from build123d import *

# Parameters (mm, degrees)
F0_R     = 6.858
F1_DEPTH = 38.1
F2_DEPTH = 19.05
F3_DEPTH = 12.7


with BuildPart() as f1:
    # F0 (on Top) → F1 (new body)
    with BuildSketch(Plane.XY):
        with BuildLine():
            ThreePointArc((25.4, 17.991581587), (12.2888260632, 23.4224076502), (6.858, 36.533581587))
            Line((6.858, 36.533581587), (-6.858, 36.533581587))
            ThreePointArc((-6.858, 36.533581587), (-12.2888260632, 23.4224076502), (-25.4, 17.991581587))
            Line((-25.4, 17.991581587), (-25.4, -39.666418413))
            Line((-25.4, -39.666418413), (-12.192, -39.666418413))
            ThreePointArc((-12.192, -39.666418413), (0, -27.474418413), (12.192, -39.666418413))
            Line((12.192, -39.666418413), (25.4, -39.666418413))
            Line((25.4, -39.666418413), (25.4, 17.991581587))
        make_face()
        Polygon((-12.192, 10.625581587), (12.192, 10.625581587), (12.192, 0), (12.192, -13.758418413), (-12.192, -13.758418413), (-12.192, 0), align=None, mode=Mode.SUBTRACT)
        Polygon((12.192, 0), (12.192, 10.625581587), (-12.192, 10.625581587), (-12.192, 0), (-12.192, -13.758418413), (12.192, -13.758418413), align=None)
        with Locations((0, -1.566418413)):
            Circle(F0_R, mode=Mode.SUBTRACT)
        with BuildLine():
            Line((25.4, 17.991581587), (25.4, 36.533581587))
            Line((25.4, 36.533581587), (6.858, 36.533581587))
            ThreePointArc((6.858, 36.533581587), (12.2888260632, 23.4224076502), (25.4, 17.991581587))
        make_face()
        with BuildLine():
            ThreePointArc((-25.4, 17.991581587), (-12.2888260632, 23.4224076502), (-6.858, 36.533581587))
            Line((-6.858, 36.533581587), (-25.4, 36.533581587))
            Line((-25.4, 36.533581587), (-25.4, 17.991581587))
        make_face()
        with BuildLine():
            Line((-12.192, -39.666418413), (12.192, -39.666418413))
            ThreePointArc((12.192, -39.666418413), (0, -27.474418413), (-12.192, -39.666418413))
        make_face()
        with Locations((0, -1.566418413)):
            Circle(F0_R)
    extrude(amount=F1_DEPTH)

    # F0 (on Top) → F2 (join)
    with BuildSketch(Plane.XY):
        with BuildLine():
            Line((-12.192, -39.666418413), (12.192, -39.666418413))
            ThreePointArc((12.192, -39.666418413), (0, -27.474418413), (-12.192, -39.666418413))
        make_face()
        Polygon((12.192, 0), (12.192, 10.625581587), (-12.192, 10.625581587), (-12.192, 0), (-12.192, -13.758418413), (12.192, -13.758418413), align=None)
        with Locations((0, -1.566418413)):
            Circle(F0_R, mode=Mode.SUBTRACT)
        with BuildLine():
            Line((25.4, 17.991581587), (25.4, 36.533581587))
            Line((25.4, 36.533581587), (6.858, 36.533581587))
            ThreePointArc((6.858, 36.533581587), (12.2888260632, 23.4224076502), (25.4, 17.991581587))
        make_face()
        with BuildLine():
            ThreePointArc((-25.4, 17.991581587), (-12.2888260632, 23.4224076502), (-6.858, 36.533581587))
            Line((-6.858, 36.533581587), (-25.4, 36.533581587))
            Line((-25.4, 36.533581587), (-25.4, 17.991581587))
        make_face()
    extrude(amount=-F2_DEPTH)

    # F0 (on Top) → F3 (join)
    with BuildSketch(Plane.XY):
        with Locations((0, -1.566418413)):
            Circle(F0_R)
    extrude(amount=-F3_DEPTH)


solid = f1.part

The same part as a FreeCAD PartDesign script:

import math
import FreeCAD as App
import Part
import Sketcher
from FreeCAD import Vector
Q = App.Units.Quantity

doc = App.newDocument("Part")
body = doc.addObject("PartDesign::Body", "Body")

# Sketch on XY plane
sketch1 = body.newObject("Sketcher::SketchObject", "Sketch")
sketch1.AttachmentSupport = (doc.getObject("XY_Plane"), [""])
sketch1.MapMode = "FlatFace"
sketch1.addGeometry(Part.LineSegment(Vector(25, -40, 0), Vector(25, 37, 0)), False)
sketch1.addGeometry(Part.LineSegment(Vector(25, 37, 0), Vector(-25, 37, 0)), False)
sketch1.addGeometry(Part.LineSegment(Vector(-25, 37, 0), Vector(-25, -40, 0)), False)
sketch1.addGeometry(Part.LineSegment(Vector(-25, -40, 0), Vector(25, -40, 0)), False)
sketch1.addConstraint(Sketcher.Constraint("Coincident", 0, 2, 1, 1))
sketch1.addConstraint(Sketcher.Constraint("Coincident", 1, 2, 2, 1))
sketch1.addConstraint(Sketcher.Constraint("Coincident", 2, 2, 3, 1))
sketch1.addConstraint(Sketcher.Constraint("Coincident", 3, 2, 0, 1))
sketch1.addConstraint(Sketcher.Constraint("Vertical", 0))
sketch1.addConstraint(Sketcher.Constraint("Horizontal", 1))
sketch1.addConstraint(Sketcher.Constraint("Vertical", 2))
sketch1.addConstraint(Sketcher.Constraint("Horizontal", 3))
sketch1.addConstraint(Sketcher.Constraint("DistanceX", 1, 2, 1, 1, Q("2 in")))
sketch1.addConstraint(Sketcher.Constraint("DistanceY", 0, 1, 0, 2, Q("3 in")))
sketch1.addConstraint(Sketcher.Constraint("DistanceX", -1, 1, 0, 2, Q("1 in")))
sketch1.addConstraint(Sketcher.Constraint("DistanceY", -1, 1, 0, 2, 36.533582))
pad1 = body.newObject("PartDesign::Pad", "Pad")
pad1.Profile = sketch1
pad1.Length = Q("1.5 in")

# Sketch on XY plane
sketch2 = body.newObject("Sketcher::SketchObject", "Sketch001")
sketch2.AttachmentSupport = (doc.getObject("XY_Plane"), [""])
sketch2.MapMode = "FlatFace"
sketch2.addGeometry(Part.LineSegment(Vector(-12, -40, 0), Vector(12, -40, 0)), False)
sketch2.addGeometry(Part.ArcOfCircle(Part.Circle(Vector(0, -40, 0), Vector(0, 0, 1), 12), math.radians(0), math.radians(180)), False)
sketch2.addGeometry(Part.LineSegment(Vector(12, 11, 0), Vector(-12, 11, 0)), False)
sketch2.addGeometry(Part.LineSegment(Vector(-12, 11, 0), Vector(-12, -14, 0)), False)
sketch2.addGeometry(Part.LineSegment(Vector(-12, -14, 0), Vector(12, -14, 0)), False)
sketch2.addGeometry(Part.LineSegment(Vector(12, -14, 0), Vector(12, 11, 0)), False)
sketch2.addGeometry(Part.Circle(Vector(0, -2, 0), Vector(0, 0, 1), 7), False)
sketch2.addGeometry(Part.LineSegment(Vector(25, 18, 0), Vector(25, 37, 0)), False)
sketch2.addGeometry(Part.LineSegment(Vector(25, 37, 0), Vector(7, 37, 0)), False)
sketch2.addGeometry(Part.ArcOfCircle(Part.Circle(Vector(25, 37, 0), Vector(0, 0, 1), 19), math.radians(180), math.radians(270)), False)
sketch2.addGeometry(Part.ArcOfCircle(Part.Circle(Vector(-25, 37, 0), Vector(0, 0, 1), 19), math.radians(-90), math.radians(0)), False)
sketch2.addGeometry(Part.LineSegment(Vector(-7, 37, 0), Vector(-25, 37, 0)), False)
sketch2.addGeometry(Part.LineSegment(Vector(-25, 37, 0), Vector(-25, 18, 0)), False)
sketch2.addConstraint(Sketcher.Constraint("Coincident", 0, 1, 1, 2))
sketch2.addConstraint(Sketcher.Constraint("Coincident", 1, 1, 0, 2))
sketch2.addConstraint(Sketcher.Constraint("Coincident", 2, 2, 3, 1))
sketch2.addConstraint(Sketcher.Constraint("Coincident", 3, 2, 4, 1))
sketch2.addConstraint(Sketcher.Constraint("Coincident", 4, 2, 5, 1))
sketch2.addConstraint(Sketcher.Constraint("Coincident", 5, 2, 2, 1))
sketch2.addConstraint(Sketcher.Constraint("Coincident", 7, 2, 8, 1))
sketch2.addConstraint(Sketcher.Constraint("Coincident", 8, 2, 9, 1))
sketch2.addConstraint(Sketcher.Constraint("Coincident", 9, 2, 7, 1))
sketch2.addConstraint(Sketcher.Constraint("Coincident", 10, 2, 11, 1))
sketch2.addConstraint(Sketcher.Constraint("Coincident", 11, 2, 12, 1))
sketch2.addConstraint(Sketcher.Constraint("Coincident", 12, 2, 10, 1))
sketch2.addConstraint(Sketcher.Constraint("Horizontal", 0))
sketch2.addConstraint(Sketcher.Constraint("Horizontal", 2))
sketch2.addConstraint(Sketcher.Constraint("Vertical", 3))
sketch2.addConstraint(Sketcher.Constraint("Horizontal", 4))
sketch2.addConstraint(Sketcher.Constraint("Vertical", 5))
sketch2.addConstraint(Sketcher.Constraint("Vertical", 7))
sketch2.addConstraint(Sketcher.Constraint("Horizontal", 8))
sketch2.addConstraint(Sketcher.Constraint("Horizontal", 11))
sketch2.addConstraint(Sketcher.Constraint("Vertical", 12))
sketch2.addConstraint(Sketcher.Constraint("Coincident", 7, 2, 9, 3))
sketch2.addConstraint(Sketcher.Constraint("Coincident", 11, 2, 10, 3))
sketch2.addConstraint(Sketcher.Constraint("Equal", 9, 10))
sketch2.addConstraint(Sketcher.Constraint("Symmetric", 9, 3, 10, 3, -2))
sketch2.addConstraint(Sketcher.Constraint("PointOnObject", 1, 3, -2))
sketch2.addConstraint(Sketcher.Constraint("PointOnObject", 6, 3, -2))
sketch2.addConstraint(Sketcher.Constraint("Horizontal", 1, 3, 0, 1))
sketch2.addConstraint(Sketcher.Constraint("Vertical", 0, 1, 2, 2))
sketch2.addConstraint(Sketcher.Constraint("Vertical", 1, 1, 4, 2))
sketch2.addConstraint(Sketcher.Constraint("Equal", 4, 3))
sketch2.addConstraint(Sketcher.Constraint("Diameter", 6, Q("0.54 in")))
sketch2.addConstraint(Sketcher.Constraint("Radius", 1, Q("0.48 in")))
sketch2.addConstraint(Sketcher.Constraint("Radius", 9, Q("0.73 in")))
sketch2.addConstraint(Sketcher.Constraint("DistanceX", -1, 1, 9, 3, Q("1 in")))
sketch2.addConstraint(Sketcher.Constraint("DistanceY", 1, 3, 9, 3, Q("3 in")))
sketch2.addConstraint(Sketcher.Constraint("DistanceY", 1, 3, 6, 3, Q("1.5 in")))
sketch2.addConstraint(Sketcher.Constraint("DistanceY", 6, 3, 2, 2, Q("0.48 in")))
sketch2.addConstraint(Sketcher.Constraint("DistanceY", 1, 3, -1, 1, 39.666418))
pad2 = body.newObject("PartDesign::Pad", "Pad001")
pad2.Profile = sketch2
pad2.Length = Q("0.75 in")
pad2.Reversed = True

# Sketch on XY plane
sketch3 = body.newObject("Sketcher::SketchObject", "Sketch002")
sketch3.AttachmentSupport = (doc.getObject("XY_Plane"), [""])
sketch3.MapMode = "FlatFace"
sketch3.addGeometry(Part.Circle(Vector(0, -2, 0), Vector(0, 0, 1), 7), False)
sketch3.addConstraint(Sketcher.Constraint("PointOnObject", 0, 3, -2))
sketch3.addConstraint(Sketcher.Constraint("Diameter", 0, Q("0.54 in")))
sketch3.addConstraint(Sketcher.Constraint("DistanceY", 0, 3, -1, 1, 1.566418))
pad3 = body.newObject("PartDesign::Pad", "Pad002")
pad3.Profile = sketch3
pad3.Length = Q("0.5 in")
pad3.Reversed = True

doc.recompute()
